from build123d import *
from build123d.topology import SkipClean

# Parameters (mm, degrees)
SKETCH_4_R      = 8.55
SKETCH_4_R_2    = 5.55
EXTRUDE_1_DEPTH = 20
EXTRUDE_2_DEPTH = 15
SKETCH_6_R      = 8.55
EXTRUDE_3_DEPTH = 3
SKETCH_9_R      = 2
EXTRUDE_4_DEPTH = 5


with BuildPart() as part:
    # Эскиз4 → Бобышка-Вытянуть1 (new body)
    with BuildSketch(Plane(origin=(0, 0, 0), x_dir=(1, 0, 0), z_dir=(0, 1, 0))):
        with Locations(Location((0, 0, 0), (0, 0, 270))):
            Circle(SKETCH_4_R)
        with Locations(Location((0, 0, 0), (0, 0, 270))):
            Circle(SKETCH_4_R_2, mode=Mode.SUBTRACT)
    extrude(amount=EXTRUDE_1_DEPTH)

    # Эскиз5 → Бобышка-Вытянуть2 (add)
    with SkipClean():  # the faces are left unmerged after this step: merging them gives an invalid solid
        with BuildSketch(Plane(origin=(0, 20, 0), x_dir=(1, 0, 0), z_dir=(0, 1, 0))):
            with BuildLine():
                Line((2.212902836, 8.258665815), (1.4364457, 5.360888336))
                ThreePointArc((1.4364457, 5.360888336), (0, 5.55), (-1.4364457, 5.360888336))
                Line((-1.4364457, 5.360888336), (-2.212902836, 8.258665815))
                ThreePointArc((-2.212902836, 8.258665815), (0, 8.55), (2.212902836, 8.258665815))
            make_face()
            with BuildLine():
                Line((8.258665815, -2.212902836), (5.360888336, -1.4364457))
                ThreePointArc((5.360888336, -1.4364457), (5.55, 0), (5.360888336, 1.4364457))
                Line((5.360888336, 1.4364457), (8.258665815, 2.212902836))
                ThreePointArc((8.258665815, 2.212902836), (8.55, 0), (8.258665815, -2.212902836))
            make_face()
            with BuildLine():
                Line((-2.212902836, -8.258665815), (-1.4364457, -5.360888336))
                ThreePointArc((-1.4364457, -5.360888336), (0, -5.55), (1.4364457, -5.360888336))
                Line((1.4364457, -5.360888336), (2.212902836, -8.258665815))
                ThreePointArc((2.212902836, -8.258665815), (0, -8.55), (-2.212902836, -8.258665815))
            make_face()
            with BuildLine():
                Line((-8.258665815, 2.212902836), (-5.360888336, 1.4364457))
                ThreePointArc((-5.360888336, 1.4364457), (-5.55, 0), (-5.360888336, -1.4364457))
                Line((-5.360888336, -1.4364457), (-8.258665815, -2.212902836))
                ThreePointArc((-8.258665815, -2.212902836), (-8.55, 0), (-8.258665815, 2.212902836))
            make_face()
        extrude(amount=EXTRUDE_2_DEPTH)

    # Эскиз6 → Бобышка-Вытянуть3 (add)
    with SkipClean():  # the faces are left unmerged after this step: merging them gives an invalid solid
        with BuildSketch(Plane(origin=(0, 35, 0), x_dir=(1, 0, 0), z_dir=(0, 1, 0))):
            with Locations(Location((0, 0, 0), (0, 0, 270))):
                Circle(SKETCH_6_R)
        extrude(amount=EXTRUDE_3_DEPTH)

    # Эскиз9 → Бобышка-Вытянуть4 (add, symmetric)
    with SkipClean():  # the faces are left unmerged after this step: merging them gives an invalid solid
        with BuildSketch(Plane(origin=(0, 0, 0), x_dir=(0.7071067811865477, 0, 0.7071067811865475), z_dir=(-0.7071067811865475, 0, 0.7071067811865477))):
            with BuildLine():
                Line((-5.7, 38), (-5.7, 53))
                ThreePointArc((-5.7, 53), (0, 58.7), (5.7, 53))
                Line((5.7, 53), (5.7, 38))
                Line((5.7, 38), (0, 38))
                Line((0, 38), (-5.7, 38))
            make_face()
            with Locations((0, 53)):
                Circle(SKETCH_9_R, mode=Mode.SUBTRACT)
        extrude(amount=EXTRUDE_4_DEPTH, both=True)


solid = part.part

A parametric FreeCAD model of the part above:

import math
import FreeCAD as App
import Part
import Sketcher
from FreeCAD import Vector
Q = App.Units.Quantity

doc = App.newDocument("Part")
params = doc.addObject("Spreadsheet::Sheet", "Params")
for row, (alias, value) in enumerate([
    ("sketch1_diameter", "17.1 mm"),
    ("sketch1_diameter2", "11.1 mm"),
    ("pad1_length", "20 mm"),
    ("sketch2_radius", "8.55 mm"),
    ("sketch2_radius2", "5.55 mm"),
    ("pad2_length", "15 mm"),
    ("sketch3_diameter", "17.1 mm"),
    ("pad3_length", "3 mm"),
    ("sketch4_diameter", "4 mm"),
    ("sketch4_radius", "5.7 mm"),
    ("sketch4_height", "15 mm"),
    ("pad4_length", "10 mm"),
], start=1):
    params.set(f"A{row}", alias)
    params.set(f"B{row}", "=" + value)
    params.setAlias(f"B{row}", alias)

body = doc.addObject("PartDesign::Body", "Body")

sketch1 = doc.addObject("Sketcher::SketchObject", "Sketch")
body.addObject(sketch1)
sketch1.AttachmentSupport = (doc.XZ_Plane, [""])
sketch1.MapMode = "FlatFace"
sketch1.addGeometry([
    Part.Circle(Vector(0, 0, 0), Vector(0, 0, 1), 9),
    Part.Circle(Vector(0, 0, 0), Vector(0, 0, 1), 6),
], False)
sketch1.addConstraint([
    Sketcher.Constraint("Coincident", 0, 3, -1, 1),
    Sketcher.Constraint("Coincident", 1, 3, -1, 1),
    Sketcher.Constraint("Diameter", 0, Q("17.1 mm")),
    Sketcher.Constraint("Diameter", 1, Q("11.1 mm")),
])
sketch1.setExpression("Constraints[2]", "Params.sketch1_diameter")
sketch1.setExpression("Constraints[3]", "Params.sketch1_diameter2")
pad1 = doc.addObject("PartDesign::Pad", "Pad")
body.addObject(pad1)
pad1.Profile = sketch1
pad1.setExpression("Length", "Params.pad1_length")
pad1.Reversed = True

sketch2 = doc.addObject("Sketcher::SketchObject", "Sketch001")
body.addObject(sketch2)
sketch2.AttachmentSupport = (doc.XZ_Plane, [""])
sketch2.MapMode = "FlatFace"
sketch2.AttachmentOffset = App.Placement(Vector(0, 0, -20), App.Rotation())
sketch2.addGeometry([
    Part.LineSegment(Vector(1.4, -5.4, 0), Vector(2.2, -8.3, 0)),
    Part.ArcOfCircle(Part.Circle(Vector(0, 0, 0), Vector(0, 0, 1), 8.6), math.radians(-105), math.radians(-75)),
    Part.LineSegment(Vector(-2.2, -8.3, 0), Vector(-1.4, -5.4, 0)),
    Part.ArcOfCircle(Part.Circle(Vector(0, 0, 0), Vector(0, 0, 1), 5.5), math.radians(-105), math.radians(-75)),
    Part.LineSegment(Vector(5.4, 1.4, 0), Vector(8.3, 2.2, 0)),
    Part.ArcOfCircle(Part.Circle(Vector(0, 0, 0), Vector(0, 0, 1), 8.6), math.radians(-15), math.radians(15)),
    Part.LineSegment(Vector(8.3, -2.2, 0), Vector(5.4, -1.4, 0)),
    Part.ArcOfCircle(Part.Circle(Vector(0, 0, 0), Vector(0, 0, 1), 5.5), math.radians(-15), math.radians(15)),
    Part.LineSegment(Vector(-1.4, 5.4, 0), Vector(-2.2, 8.3, 0)),
    Part.ArcOfCircle(Part.Circle(Vector(0, 0, 0), Vector(0, 0, 1), 8.6), math.radians(75), math.radians(105)),
    Part.LineSegment(Vector(2.2, 8.3, 0), Vector(1.4, 5.4, 0)),
    Part.ArcOfCircle(Part.Circle(Vector(0, 0, 0), Vector(0, 0, 1), 5.5), math.radians(75), math.radians(105)),
    Part.LineSegment(Vector(-5.4, -1.4, 0), Vector(-8.3, -2.2, 0)),
    Part.ArcOfCircle(Part.Circle(Vector(0, 0, 0), Vector(0, 0, 1), 8.6), math.radians(165), math.radians(195)),
    Part.LineSegment(Vector(-8.3, 2.2, 0), Vector(-5.4, 1.4, 0)),
    Part.ArcOfCircle(Part.Circle(Vector(0, 0, 0), Vector(0, 0, 1), 5.5), math.radians(165), math.radians(195)),
], False)
sketch2.addConstraint([
    Sketcher.Constraint("Coincident", 0, 2, 1, 2),
    Sketcher.Constraint("Coincident", 1, 1, 2, 1),
    Sketcher.Constraint("Coincident", 2, 2, 3, 1),
    Sketcher.Constraint("Coincident", 3, 2, 0, 1),
    Sketcher.Constraint("Coincident", 4, 2, 5, 2),
    Sketcher.Constraint("Coincident", 5, 1, 6, 1),
    Sketcher.Constraint("Coincident", 6, 2, 7, 1),
    Sketcher.Constraint("Coincident", 7, 2, 4, 1),
    Sketcher.Constraint("Coincident", 8, 2, 9, 2),
    Sketcher.Constraint("Coincident", 9, 1, 10, 1),
    Sketcher.Constraint("Coincident", 10, 2, 11, 1),
    Sketcher.Constraint("Coincident", 11, 2, 8, 1),
    Sketcher.Constraint("Coincident", 12, 2, 13, 2),
    Sketcher.Constraint("Coincident", 13, 1, 14, 1),
    Sketcher.Constraint("Coincident", 14, 2, 15, 1),
    Sketcher.Constraint("Coincident", 15, 2, 12, 1),
    Sketcher.Constraint("Coincident", 1, 3, -1, 1),
    Sketcher.Constraint("Coincident", 3, 3, -1, 1),
    Sketcher.Constraint("Coincident", 5, 3, -1, 1),
    Sketcher.Constraint("Coincident", 7, 3, -1, 1),
    Sketcher.Constraint("Coincident", 9, 3, -1, 1),
    Sketcher.Constraint("Coincident", 11, 3, -1, 1),
    Sketcher.Constraint("Coincident", 13, 3, -1, 1),
    Sketcher.Constraint("Coincident", 15, 3, -1, 1),
    Sketcher.Constraint("Equal", 1, 5),
    Sketcher.Constraint("Equal", 3, 7),
    Sketcher.Constraint("Equal", 5, 9),
    Sketcher.Constraint("Equal", 7, 11),
    Sketcher.Constraint("Equal", 9, 13),
    Sketcher.Constraint("Equal", 11, 15),
    Sketcher.Constraint("Perpendicular", 0, 4),
    Sketcher.Constraint("Perpendicular", 2, 6),
    Sketcher.Constraint("Perpendicular", 4, 8),
    Sketcher.Constraint("Perpendicular", 6, 10),
    Sketcher.Constraint("Perpendicular", 8, 12),
    Sketcher.Constraint("Perpendicular", 10, 14),
    Sketcher.Constraint("Horizontal", 0, 2, 1, 1),
    Sketcher.Constraint("Horizontal", 2, 2, 3, 2),
    Sketcher.Constraint("Horizontal", 8, 2, 9, 1),
    Sketcher.Constraint("Horizontal", 5, 1, 12, 2),
    Sketcher.Constraint("Horizontal", 4, 2, 13, 1),
    Sketcher.Constraint("Vertical", 4, 2, 5, 1),
    Sketcher.Constraint("Vertical", 1, 1, 8, 2),
    Sketcher.Constraint("Angle", 0, Q("-75 deg")),
    Sketcher.Constraint("Radius", 1, Q("8.55 mm")),
    Sketcher.Constraint("Radius", 3, Q("5.55 mm")),
    Sketcher.Constraint("DistanceY", 2, 2, -1, 1, Q("5.360888 mm")),
    Sketcher.Constraint("DistanceX", -1, 1, 6, 2, Q("5.360888 mm")),
])
sketch2.setExpression("Constraints[44]", "Params.sketch2_radius")
sketch2.setExpression("Constraints[45]", "Params.sketch2_radius2")
pad2 = doc.addObject("PartDesign::Pad", "Pad001")
body.addObject(pad2)
pad2.Profile = sketch2
pad2.setExpression("Length", "Params.pad2_length")
pad2.Reversed = True

sketch3 = doc.addObject("Sketcher::SketchObject", "Sketch002")
body.addObject(sketch3)
sketch3.AttachmentSupport = (doc.XZ_Plane, [""])
sketch3.MapMode = "FlatFace"
sketch3.AttachmentOffset = App.Placement(Vector(0, 0, -35), App.Rotation())
sketch3.addGeometry(Part.Circle(Vector(0, 0, 0), Vector(0, 0, 1), 9), False)
sketch3.addConstraint([
    Sketcher.Constraint("Coincident", 0, 3, -1, 1),
    Sketcher.Constraint("Diameter", 0, Q("17.1 mm")),
])
sketch3.setExpression("Constraints[1]", "Params.sketch3_diameter")
pad3 = doc.addObject("PartDesign::Pad", "Pad002")
body.addObject(pad3)
pad3.Profile = sketch3
pad3.setExpression("Length", "Params.pad3_length")
pad3.Reversed = True

sketch4 = doc.addObject("Sketcher::SketchObject", "Sketch003")
body.addObject(sketch4)
sketch4.Placement = App.Placement(Vector(0, 0, 0), App.Rotation(Vector(0.707106781, 0, 0.707106781), Vector(0, 0.999999999, 0), Vector(-0.707106781, 0, 0.707106781), "ZXY"))
sketch4.addGeometry([
    Part.LineSegment(Vector(-5.7, 53, 0), Vector(-5.7, 38, 0)),
    Part.LineSegment(Vector(-5.7, 38, 0), Vector(5.7, 38, 0)),
    Part.LineSegment(Vector(5.7, 38, 0), Vector(5.7, 53, 0)),
    Part.ArcOfCircle(Part.Circle(Vector(0, 53, 0), Vector(0, 0, 1), 5.7), math.radians(0), math.radians(180)),
    Part.Circle(Vector(0, 53, 0), Vector(0, 0, 1), 2),
], False)
sketch4.addConstraint([
    Sketcher.Constraint("Coincident", 0, 2, 1, 1),
    Sketcher.Constraint("Coincident", 1, 2, 2, 1),
    Sketcher.Constraint("Tangent", 2, 2, 3, 1),
    Sketcher.Constraint("Tangent", 3, 2, 0, 1),
    Sketcher.Constraint("Vertical", 0),
    Sketcher.Constraint("Horizontal", 1),
    Sketcher.Constraint("Vertical", 2),
    Sketcher.Constraint("Coincident", 4, 3, 3, 3),
    Sketcher.Constraint("PointOnObject", 3, 3, -2),
    Sketcher.Constraint("Diameter", 4, Q("4 mm")),
    Sketcher.Constraint("Radius", 3, Q("5.7 mm")),
    Sketcher.Constraint("DistanceY", 0, 2, 0, 1, Q("15 mm")),
    Sketcher.Constraint("DistanceY", -1, 1, 3, 3, Q("53 mm")),
])
sketch4.setExpression("Constraints[9]", "Params.sketch4_diameter")
sketch4.setExpression("Constraints[10]", "Params.sketch4_radius")
sketch4.setExpression("Constraints[11]", "Params.sketch4_height")
pad4 = doc.addObject("PartDesign::Pad", "Pad003")
body.addObject(pad4)
pad4.Profile = sketch4
pad4.setExpression("Length", "Params.pad4_length")
pad4.Midplane = True

doc.recompute()
